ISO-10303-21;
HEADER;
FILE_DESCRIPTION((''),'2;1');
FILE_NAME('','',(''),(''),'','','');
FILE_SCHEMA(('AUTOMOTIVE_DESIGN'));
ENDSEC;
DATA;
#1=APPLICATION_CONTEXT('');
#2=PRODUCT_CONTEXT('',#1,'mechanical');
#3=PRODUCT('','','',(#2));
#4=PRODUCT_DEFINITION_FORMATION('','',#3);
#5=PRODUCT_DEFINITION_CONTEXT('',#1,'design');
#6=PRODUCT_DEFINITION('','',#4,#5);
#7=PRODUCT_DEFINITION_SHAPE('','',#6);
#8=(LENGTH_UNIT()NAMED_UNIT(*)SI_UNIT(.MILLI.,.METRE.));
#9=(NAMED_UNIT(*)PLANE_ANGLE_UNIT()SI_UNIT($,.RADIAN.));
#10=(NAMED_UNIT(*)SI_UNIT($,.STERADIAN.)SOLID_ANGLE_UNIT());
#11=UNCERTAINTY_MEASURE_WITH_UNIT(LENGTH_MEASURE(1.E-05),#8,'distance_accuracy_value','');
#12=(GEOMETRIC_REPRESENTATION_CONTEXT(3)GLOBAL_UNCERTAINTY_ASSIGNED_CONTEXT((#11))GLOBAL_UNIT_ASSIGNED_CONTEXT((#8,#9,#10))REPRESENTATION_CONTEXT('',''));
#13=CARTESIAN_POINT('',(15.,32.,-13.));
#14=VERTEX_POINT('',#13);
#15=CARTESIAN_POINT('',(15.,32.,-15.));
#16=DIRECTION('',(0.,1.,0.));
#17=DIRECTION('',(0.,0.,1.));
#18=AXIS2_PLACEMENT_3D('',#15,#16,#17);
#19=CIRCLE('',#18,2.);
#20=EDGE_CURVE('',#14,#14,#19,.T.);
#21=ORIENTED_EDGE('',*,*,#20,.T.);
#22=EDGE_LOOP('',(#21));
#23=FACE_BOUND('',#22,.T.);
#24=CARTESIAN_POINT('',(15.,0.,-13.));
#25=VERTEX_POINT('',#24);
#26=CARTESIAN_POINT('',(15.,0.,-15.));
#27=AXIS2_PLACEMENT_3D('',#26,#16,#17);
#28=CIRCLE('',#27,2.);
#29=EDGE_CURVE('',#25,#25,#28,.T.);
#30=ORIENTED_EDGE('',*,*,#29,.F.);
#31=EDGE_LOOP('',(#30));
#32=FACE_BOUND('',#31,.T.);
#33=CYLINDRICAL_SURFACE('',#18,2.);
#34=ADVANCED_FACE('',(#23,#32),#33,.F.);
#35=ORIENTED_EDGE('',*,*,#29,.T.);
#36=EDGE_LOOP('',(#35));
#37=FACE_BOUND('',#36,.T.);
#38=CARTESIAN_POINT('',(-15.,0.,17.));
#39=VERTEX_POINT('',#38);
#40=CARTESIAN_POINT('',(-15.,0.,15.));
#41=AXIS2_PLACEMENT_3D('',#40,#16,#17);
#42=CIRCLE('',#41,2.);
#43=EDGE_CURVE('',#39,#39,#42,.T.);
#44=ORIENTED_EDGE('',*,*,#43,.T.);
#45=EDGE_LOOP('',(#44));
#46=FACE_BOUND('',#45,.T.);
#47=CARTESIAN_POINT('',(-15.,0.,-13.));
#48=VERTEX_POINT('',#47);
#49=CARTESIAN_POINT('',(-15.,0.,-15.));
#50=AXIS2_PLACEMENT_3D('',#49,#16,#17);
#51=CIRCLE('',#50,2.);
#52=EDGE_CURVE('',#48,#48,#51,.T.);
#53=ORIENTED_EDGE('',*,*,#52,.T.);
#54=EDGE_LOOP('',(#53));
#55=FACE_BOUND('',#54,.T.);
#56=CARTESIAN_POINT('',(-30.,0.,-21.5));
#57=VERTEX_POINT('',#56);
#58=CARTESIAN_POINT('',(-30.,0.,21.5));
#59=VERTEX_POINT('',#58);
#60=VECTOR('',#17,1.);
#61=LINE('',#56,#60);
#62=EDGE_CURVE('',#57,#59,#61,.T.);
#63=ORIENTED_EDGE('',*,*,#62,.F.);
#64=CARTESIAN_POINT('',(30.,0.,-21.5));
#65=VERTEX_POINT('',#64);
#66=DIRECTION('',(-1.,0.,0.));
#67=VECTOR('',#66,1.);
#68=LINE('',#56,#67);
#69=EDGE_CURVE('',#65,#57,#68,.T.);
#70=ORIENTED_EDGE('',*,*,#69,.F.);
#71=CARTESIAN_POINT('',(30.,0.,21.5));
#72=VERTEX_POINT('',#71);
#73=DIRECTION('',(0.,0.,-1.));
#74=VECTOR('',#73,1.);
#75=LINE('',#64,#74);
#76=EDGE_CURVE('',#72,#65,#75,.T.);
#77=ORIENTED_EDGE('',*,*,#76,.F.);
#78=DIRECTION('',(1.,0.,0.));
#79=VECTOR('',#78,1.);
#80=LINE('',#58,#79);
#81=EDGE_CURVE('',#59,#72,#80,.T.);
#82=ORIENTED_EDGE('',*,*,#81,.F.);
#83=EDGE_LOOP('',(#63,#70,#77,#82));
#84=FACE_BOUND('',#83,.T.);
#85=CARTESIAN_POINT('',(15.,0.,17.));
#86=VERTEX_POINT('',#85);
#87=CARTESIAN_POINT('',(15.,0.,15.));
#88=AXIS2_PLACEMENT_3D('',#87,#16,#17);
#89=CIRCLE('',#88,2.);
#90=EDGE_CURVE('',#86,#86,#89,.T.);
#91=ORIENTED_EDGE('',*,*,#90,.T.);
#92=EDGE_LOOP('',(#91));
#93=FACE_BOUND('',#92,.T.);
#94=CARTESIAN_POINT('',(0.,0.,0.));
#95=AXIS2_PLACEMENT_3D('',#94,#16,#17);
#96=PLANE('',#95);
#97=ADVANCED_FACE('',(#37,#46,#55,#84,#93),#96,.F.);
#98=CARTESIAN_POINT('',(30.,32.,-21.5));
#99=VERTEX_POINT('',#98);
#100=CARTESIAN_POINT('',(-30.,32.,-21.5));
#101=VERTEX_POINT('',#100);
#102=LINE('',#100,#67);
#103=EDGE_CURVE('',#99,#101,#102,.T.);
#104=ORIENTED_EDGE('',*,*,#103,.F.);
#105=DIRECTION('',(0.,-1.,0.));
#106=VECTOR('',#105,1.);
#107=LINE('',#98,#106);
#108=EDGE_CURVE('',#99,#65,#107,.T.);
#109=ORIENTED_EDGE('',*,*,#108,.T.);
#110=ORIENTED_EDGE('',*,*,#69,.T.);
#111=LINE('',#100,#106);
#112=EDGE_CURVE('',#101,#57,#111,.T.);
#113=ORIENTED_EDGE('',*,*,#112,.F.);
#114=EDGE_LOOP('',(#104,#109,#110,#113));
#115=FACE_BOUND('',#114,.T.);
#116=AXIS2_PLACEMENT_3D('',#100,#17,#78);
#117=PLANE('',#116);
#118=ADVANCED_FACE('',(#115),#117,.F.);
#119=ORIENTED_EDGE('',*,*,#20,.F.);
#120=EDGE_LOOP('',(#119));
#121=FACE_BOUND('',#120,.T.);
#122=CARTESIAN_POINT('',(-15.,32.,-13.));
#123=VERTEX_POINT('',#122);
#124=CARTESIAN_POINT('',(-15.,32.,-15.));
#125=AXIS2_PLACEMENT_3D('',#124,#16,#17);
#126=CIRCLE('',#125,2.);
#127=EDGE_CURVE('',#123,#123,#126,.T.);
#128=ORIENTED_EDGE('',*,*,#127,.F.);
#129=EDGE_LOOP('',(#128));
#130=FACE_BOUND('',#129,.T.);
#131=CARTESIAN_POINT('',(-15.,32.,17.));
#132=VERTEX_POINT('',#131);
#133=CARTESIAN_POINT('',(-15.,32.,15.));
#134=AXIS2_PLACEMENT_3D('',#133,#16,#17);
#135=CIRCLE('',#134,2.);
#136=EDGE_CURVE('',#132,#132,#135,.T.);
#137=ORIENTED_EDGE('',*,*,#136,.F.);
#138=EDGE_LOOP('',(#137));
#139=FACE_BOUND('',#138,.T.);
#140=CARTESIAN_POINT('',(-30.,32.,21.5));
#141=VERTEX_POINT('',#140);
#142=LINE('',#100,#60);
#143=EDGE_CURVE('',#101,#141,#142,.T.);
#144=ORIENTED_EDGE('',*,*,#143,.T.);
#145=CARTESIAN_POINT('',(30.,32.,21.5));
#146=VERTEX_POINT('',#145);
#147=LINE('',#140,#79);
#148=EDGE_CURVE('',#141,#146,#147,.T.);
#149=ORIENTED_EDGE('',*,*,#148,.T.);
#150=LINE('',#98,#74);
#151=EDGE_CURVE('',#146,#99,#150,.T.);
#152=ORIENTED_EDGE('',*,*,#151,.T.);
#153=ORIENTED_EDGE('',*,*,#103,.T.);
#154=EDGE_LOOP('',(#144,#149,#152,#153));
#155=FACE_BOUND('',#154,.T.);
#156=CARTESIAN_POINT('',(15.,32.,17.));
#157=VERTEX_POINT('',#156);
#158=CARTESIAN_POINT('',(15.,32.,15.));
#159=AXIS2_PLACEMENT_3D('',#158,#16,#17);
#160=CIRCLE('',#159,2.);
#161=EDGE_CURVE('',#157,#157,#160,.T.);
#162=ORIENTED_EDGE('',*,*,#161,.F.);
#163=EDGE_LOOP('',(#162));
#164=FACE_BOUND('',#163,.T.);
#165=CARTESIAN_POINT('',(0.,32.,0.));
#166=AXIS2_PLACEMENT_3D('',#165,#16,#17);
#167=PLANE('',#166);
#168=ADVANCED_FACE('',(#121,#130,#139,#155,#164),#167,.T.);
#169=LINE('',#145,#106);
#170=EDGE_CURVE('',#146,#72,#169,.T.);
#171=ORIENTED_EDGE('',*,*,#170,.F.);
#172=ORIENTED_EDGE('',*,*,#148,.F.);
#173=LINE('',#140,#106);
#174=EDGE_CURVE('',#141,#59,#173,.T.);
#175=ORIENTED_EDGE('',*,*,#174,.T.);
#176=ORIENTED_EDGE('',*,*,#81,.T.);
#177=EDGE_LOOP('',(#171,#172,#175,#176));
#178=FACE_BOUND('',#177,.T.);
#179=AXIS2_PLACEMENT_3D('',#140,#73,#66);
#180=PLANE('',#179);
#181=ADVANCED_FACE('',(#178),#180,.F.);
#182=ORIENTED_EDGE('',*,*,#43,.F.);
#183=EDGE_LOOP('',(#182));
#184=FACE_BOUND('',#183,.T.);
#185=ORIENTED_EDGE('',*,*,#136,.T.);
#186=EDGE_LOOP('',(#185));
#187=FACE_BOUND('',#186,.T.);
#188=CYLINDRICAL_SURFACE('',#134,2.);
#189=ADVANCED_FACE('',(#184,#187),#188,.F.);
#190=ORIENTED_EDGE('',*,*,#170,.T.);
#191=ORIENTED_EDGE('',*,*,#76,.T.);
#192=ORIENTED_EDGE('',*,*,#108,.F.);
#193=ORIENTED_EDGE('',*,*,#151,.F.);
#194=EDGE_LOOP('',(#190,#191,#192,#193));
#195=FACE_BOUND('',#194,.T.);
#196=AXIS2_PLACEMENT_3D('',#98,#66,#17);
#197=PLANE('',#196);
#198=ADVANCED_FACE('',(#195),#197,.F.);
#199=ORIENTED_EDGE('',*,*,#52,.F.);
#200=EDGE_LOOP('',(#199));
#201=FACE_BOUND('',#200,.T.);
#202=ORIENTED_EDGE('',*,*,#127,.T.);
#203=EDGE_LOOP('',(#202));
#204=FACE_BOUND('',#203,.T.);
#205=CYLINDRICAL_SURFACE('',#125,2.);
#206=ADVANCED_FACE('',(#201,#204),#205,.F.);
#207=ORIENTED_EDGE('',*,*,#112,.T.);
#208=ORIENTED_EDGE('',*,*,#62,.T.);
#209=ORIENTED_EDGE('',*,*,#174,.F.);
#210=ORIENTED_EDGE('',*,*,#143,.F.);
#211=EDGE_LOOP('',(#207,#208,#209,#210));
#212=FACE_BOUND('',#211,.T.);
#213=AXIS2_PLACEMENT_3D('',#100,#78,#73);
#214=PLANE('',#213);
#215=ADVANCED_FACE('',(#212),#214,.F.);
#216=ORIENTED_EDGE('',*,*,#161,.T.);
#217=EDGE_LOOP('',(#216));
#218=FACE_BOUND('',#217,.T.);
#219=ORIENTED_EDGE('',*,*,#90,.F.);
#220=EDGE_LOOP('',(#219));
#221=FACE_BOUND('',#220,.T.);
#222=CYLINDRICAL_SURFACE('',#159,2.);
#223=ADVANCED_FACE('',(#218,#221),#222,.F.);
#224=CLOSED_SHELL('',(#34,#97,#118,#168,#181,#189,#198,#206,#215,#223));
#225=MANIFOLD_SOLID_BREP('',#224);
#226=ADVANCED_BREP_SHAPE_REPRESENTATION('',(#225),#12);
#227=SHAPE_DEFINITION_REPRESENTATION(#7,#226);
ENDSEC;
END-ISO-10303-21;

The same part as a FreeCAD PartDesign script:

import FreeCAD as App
import Part
import Sketcher

V = App.Vector
Q = App.Units.Quantity


def add_polygon(sketch, points):
    """Adds a closed chain of lines whose ends are joined by coincident constraints."""
    first, n = sketch.GeometryCount, len(points)
    for a, b in zip(points, points[1:] + points[:1]):
        sketch.addGeometry(Part.LineSegment(App.Vector(*a, 0), App.Vector(*b, 0)), False)
    for i in range(n):
        sketch.addConstraint(Sketcher.Constraint("Coincident", first + i, 2, first + (i + 1) % n, 1))

doc = App.newDocument("Part")
params = doc.addObject("Spreadsheet::Sheet", "Params")
for row, (alias, value) in enumerate([
    ("sketch1_width", "60 mm"),
    ("sketch1_height", "43 mm"),
    ("pad1_length", "32 mm"),
    ("sketch2_diameter", "4 mm"),
    ("hole_diameter", "4 mm"),
], start=1):
    params.set(f"A{row}", alias)
    params.set(f"B{row}", "=" + value)
    params.setAlias(f"B{row}", alias)

body = doc.addObject("PartDesign::Body", "Body")

sketch1 = body.newObject("Sketcher::SketchObject", "Sketch")
sketch1.AttachmentSupport = (doc.getObject("XZ_Plane"), [""])
sketch1.MapMode = "FlatFace"
add_polygon(sketch1, [(-30, -21.5), (-30, 21.5), (30, 21.5), (30, -21.5)])
sketch1.addConstraint([
    Sketcher.Constraint("Vertical", 0),
    Sketcher.Constraint("Horizontal", 1),
    Sketcher.Constraint("Vertical", 2),
    Sketcher.Constraint("Horizontal", 3),
    Sketcher.Constraint("Symmetric", 0, 2, 2, 2, -1, 1),
    Sketcher.Constraint("DistanceX", 1, 1, 1, 2, Q("60 mm")),
    Sketcher.Constraint("DistanceY", 0, 1, 0, 2, Q("43 mm")),
])
sketch1.setExpression("Constraints[9]", "Params.sketch1_width")
sketch1.setExpression("Constraints[10]", "Params.sketch1_height")
pad1 = body.newObject("PartDesign::Pad", "Pad")
pad1.Profile = sketch1
pad1.setExpression("Length", "Params.pad1_length")
pad1.Reversed = True

sketch2 = body.newObject("Sketcher::SketchObject", "Sketch001")
sketch2.AttachmentSupport = (doc.getObject("XZ_Plane"), [""])
sketch2.MapMode = "FlatFace"
sketch2.AttachmentOffset = App.Placement(V(0, 0, -32), App.Rotation())
sketch2.addGeometry([
    Part.Circle(V(-15, -15, 0), V(0, 0, 1), 2),
    Part.Circle(V(-15, 15, 0), V(0, 0, 1), 2),
    Part.Circle(V(15, 15, 0), V(0, 0, 1), 2),
    Part.Circle(V(15, -15, 0), V(0, 0, 1), 2),
], False)
sketch2.addConstraint([
    Sketcher.Constraint("Equal", 0, 1),
    Sketcher.Constraint("Equal", 1, 2),
    Sketcher.Constraint("Equal", 2, 3),
    Sketcher.Constraint("Symmetric", 0, 3, 2, 3, -1, 1),
    Sketcher.Constraint("Symmetric", 1, 3, 3, 3, -1, 1),
    Sketcher.Constraint("Symmetric", 1, 3, 2, 3, -2),
    Sketcher.Constraint("Diameter", 0, Q("4 mm")),
    Sketcher.Constraint("DistanceX", 0, 3, -1, 1, Q("15 mm")),
    Sketcher.Constraint("DistanceY", 0, 3, -1, 1, Q("15 mm")),
])
sketch2.setExpression("Constraints[6]", "Params.sketch2_diameter")
doc.recompute()
hole = body.newObject("PartDesign::Hole", "Hole")
hole.Profile = sketch2
hole.ThreadType = "None"
hole.setExpression("Diameter", "Params.hole_diameter")
hole.DepthType = "ThroughAll"
hole.Reversed = True

doc.recompute()
